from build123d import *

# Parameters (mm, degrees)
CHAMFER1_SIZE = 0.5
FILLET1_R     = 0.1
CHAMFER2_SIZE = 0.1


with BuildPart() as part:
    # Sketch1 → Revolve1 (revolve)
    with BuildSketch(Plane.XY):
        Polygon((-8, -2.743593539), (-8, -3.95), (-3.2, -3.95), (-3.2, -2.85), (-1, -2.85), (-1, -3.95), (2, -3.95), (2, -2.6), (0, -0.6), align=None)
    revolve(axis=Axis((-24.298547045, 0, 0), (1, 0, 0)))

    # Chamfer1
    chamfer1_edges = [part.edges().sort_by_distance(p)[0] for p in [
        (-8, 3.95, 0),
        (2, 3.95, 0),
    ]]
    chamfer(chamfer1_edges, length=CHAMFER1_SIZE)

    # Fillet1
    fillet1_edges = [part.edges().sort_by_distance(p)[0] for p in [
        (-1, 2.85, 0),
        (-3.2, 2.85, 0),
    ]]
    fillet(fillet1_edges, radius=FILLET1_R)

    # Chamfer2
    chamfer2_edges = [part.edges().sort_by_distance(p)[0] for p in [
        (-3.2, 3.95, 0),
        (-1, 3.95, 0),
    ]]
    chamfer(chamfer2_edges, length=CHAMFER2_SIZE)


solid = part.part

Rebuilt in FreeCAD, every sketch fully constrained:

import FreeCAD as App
import Part
import Sketcher
Q = App.Units.Quantity


def edges_at(feature, points):
    """Names of the edges that pass closest to the given points."""
    edges = feature.Shape.Edges
    near = lambda p: min(range(len(edges)), key=lambda i: edges[i].distToShape(Part.Vertex(*p))[0])
    return sorted({f"Edge{near(p) + 1}" for p in points})

doc = App.newDocument("Part")
body = doc.addObject("PartDesign::Body", "Body")

# Sketch on XY plane
sketch1 = doc.addObject("Sketcher::SketchObject", "Sketch")
body.addObject(sketch1)
sketch1.AttachmentSupport = (doc.XY_Plane, [""])
sketch1.MapMode = "FlatFace"
sketch1.addGeometry(Part.LineSegment(App.Vector(-8, -2.743594, 0), App.Vector(-8, -3.95, 0)), False)
sketch1.addGeometry(Part.LineSegment(App.Vector(-8, -3.95, 0), App.Vector(-3.2, -3.95, 0)), False)
sketch1.addGeometry(Part.LineSegment(App.Vector(-3.2, -3.95, 0), App.Vector(-3.2, -2.85, 0)), False)
sketch1.addGeometry(Part.LineSegment(App.Vector(-3.2, -2.85, 0), App.Vector(-1, -2.85, 0)), False)
sketch1.addGeometry(Part.LineSegment(App.Vector(-1, -2.85, 0), App.Vector(-1, -3.95, 0)), False)
sketch1.addGeometry(Part.LineSegment(App.Vector(-1, -3.95, 0), App.Vector(2, -3.95, 0)), False)
sketch1.addGeometry(Part.LineSegment(App.Vector(2, -3.95, 0), App.Vector(2, -2.6, 0)), False)
sketch1.addGeometry(Part.LineSegment(App.Vector(2, -2.6, 0), App.Vector(0, -0.6, 0)), False)
sketch1.addGeometry(Part.LineSegment(App.Vector(0, -0.6, 0), App.Vector(-8, -2.743594, 0)), False)
sketch1.addConstraint(Sketcher.Constraint("Coincident", 0, 2, 1, 1))
sketch1.addConstraint(Sketcher.Constraint("Coincident", 1, 2, 2, 1))
sketch1.addConstraint(Sketcher.Constraint("Coincident", 2, 2, 3, 1))
sketch1.addConstraint(Sketcher.Constraint("Coincident", 3, 2, 4, 1))
sketch1.addConstraint(Sketcher.Constraint("Coincident", 4, 2, 5, 1))
sketch1.addConstraint(Sketcher.Constraint("Coincident", 5, 2, 6, 1))
sketch1.addConstraint(Sketcher.Constraint("Coincident", 6, 2, 7, 1))
sketch1.addConstraint(Sketcher.Constraint("Coincident", 7, 2, 8, 1))
sketch1.addConstraint(Sketcher.Constraint("Coincident", 8, 2, 0, 1))
sketch1.addConstraint(Sketcher.Constraint("Vertical", 0))
sketch1.addConstraint(Sketcher.Constraint("Horizontal", 1))
sketch1.addConstraint(Sketcher.Constraint("Vertical", 2))
sketch1.addConstraint(Sketcher.Constraint("Horizontal", 3))
sketch1.addConstraint(Sketcher.Constraint("Vertical", 4))
sketch1.addConstraint(Sketcher.Constraint("Horizontal", 5))
sketch1.addConstraint(Sketcher.Constraint("Vertical", 6))
sketch1.addConstraint(Sketcher.Constraint("PointOnObject", 7, 2, -2))
sketch1.addConstraint(Sketcher.Constraint("Horizontal", 1, 2, 4, 2))
sketch1.addConstraint(Sketcher.Constraint("DistanceX", 5, 1, 5, 2, 3.0))
sketch1.addConstraint(Sketcher.Constraint("Angle", 7, Q("135 deg")))
sketch1.addConstraint(Sketcher.Constraint("Angle", 8, Q("-165 deg")))
sketch1.addConstraint(Sketcher.Constraint("DistanceX", 1, 1, 1, 2, 4.8))
sketch1.addConstraint(Sketcher.Constraint("DistanceX", 3, 1, 3, 2, 2.2))
sketch1.addConstraint(Sketcher.Constraint("DistanceY", 2, 1, 2, 2, 1.1))
sketch1.addConstraint(Sketcher.Constraint("DistanceX", 0, 2, -1, 1, 8.0))
sketch1.addConstraint(Sketcher.Constraint("DistanceY", 6, 1, 6, 2, 1.35))
sketch1.addConstraint(Sketcher.Constraint("DistanceY", 6, 2, -1, 1, 2.6))
revolution = doc.addObject("PartDesign::Revolution", "Revolution")
body.addObject(revolution)
revolution.Profile = sketch1
revolution.ReferenceAxis = (sketch1, ["H_Axis"])
revolution.Angle = 360
doc.recompute()

chamfer = doc.addObject("PartDesign::Chamfer", "Chamfer")
body.addObject(chamfer)
chamfer.Base = (revolution, edges_at(revolution, [(-8, 3.95, 0), (2, 3.95, 0)]))
chamfer.Size = 0.5
doc.recompute()

fillet = doc.addObject("PartDesign::Fillet", "Fillet")
body.addObject(fillet)
fillet.Base = (chamfer, edges_at(chamfer, [(-1, 2.85, 0), (-3.2, 2.85, 0)]))
fillet.Radius = 0.1
doc.recompute()

chamfer2 = doc.addObject("PartDesign::Chamfer", "Chamfer001")
body.addObject(chamfer2)
chamfer2.Base = (fillet, edges_at(fillet, [(-3.2, 3.95, 0), (-1, 3.95, 0)]))
chamfer2.Size = 0.1

doc.recompute()
